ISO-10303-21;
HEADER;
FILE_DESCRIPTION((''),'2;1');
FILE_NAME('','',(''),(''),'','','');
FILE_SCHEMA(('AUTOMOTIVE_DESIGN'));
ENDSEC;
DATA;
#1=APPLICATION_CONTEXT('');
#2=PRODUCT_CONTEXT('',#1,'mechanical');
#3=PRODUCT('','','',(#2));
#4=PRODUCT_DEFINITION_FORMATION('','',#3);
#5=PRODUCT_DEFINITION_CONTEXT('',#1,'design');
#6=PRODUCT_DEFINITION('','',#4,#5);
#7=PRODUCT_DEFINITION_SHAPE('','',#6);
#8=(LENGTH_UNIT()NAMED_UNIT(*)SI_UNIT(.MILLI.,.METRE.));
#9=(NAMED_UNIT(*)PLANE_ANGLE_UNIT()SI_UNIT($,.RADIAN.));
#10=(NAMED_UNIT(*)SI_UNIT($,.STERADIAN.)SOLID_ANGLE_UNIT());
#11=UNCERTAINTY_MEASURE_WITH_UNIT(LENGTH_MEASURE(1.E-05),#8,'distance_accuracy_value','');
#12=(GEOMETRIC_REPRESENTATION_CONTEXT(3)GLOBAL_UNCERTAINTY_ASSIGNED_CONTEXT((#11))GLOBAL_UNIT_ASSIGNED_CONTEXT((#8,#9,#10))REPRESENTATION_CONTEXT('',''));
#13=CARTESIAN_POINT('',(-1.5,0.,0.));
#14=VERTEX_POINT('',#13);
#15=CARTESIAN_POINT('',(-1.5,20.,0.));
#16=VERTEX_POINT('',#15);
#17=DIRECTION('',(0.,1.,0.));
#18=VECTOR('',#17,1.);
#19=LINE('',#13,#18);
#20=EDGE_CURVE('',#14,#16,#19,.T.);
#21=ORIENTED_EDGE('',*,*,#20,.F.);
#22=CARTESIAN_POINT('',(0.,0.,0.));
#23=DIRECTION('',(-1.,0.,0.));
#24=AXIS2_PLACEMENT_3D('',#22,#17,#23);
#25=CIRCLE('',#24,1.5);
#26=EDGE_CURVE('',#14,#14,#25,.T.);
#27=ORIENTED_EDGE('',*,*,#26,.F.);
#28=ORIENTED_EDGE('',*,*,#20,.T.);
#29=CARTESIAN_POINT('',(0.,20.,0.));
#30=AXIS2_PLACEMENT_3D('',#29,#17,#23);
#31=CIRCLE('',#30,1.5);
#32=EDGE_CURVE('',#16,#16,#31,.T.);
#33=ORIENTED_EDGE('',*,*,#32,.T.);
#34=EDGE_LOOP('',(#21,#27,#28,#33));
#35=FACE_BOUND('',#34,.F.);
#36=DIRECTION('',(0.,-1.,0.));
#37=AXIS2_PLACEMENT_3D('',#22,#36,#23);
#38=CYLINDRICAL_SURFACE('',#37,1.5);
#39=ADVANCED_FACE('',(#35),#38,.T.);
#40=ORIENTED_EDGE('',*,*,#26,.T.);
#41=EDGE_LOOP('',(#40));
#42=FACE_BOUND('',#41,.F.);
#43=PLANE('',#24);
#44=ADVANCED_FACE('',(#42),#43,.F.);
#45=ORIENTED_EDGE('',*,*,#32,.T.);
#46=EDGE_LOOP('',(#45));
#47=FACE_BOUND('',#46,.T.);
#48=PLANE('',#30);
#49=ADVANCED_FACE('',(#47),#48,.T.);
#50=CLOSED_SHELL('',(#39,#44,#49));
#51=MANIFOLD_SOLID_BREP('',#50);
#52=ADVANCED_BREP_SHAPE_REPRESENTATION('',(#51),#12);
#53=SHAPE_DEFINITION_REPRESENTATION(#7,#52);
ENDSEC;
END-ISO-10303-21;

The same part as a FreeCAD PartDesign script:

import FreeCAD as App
import Part
import Sketcher

doc = App.newDocument("Part")
body = doc.addObject("PartDesign::Body", "Body")

sketch1 = doc.addObject("Sketcher::SketchObject", "Sketch")
body.addObject(sketch1)
sketch1.AttachmentSupport = (doc.XZ_Plane, [""])
sketch1.MapMode = "FlatFace"
sketch1.addGeometry(Part.Circle(App.Vector(0, 0, 0), App.Vector(0, 0, 1), 1.5), False)
sketch1.addConstraint([
    Sketcher.Constraint("Coincident", 0, 3, -1, 1),
    Sketcher.Constraint("Diameter", 0, 3.0),
])
pad1 = doc.addObject("PartDesign::Pad", "Pad")
body.addObject(pad1)
pad1.Profile = sketch1
pad1.Length = 20
pad1.Reversed = True

doc.recompute()
